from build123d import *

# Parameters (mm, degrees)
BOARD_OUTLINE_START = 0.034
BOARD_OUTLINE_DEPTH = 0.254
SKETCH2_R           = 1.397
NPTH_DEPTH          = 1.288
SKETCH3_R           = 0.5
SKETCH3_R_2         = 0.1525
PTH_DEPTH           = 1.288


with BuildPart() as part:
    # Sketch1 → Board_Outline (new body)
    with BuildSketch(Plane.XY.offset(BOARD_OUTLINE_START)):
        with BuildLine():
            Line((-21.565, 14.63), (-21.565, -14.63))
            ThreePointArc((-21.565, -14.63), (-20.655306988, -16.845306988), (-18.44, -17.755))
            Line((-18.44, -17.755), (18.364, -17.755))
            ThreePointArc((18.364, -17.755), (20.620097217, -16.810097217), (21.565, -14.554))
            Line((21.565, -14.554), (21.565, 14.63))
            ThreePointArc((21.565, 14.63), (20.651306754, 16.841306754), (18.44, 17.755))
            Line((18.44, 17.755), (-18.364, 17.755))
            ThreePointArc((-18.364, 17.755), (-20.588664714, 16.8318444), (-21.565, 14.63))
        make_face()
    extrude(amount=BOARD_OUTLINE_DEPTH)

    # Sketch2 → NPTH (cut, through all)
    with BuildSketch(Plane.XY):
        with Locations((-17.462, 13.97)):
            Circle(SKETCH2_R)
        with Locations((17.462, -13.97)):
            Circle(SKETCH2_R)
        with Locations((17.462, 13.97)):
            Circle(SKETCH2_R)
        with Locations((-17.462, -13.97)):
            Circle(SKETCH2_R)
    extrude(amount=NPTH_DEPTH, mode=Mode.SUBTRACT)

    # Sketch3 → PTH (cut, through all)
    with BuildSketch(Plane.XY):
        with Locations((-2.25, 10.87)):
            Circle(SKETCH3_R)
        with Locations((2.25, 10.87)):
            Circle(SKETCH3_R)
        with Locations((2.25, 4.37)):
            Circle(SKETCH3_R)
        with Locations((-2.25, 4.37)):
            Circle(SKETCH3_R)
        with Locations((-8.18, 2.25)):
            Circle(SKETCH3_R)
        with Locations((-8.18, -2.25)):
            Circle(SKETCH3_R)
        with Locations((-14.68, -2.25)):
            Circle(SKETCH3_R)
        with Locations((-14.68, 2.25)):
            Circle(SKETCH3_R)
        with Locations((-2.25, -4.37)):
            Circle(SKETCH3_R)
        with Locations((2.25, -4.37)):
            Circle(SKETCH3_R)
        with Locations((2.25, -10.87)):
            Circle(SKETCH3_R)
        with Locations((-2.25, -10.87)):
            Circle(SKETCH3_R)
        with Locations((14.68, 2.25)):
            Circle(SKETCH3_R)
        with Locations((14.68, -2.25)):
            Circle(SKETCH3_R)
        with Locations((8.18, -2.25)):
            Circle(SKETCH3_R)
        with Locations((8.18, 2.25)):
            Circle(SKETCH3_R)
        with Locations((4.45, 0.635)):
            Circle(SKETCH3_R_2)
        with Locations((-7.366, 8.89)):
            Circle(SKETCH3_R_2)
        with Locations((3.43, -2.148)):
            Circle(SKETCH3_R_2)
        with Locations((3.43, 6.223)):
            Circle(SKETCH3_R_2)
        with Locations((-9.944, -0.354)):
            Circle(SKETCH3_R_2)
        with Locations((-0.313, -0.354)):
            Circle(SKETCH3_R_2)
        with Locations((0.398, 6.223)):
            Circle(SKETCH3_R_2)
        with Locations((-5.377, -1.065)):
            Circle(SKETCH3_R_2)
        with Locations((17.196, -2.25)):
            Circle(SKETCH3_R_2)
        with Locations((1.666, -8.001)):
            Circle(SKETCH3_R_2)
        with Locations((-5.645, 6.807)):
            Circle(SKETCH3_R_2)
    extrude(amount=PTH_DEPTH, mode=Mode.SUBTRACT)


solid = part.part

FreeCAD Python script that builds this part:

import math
import FreeCAD as App
import Part
import Sketcher

V = App.Vector
Q = App.Units.Quantity

doc = App.newDocument("Part")
body = doc.addObject("PartDesign::Body", "Body")

sketch1 = body.newObject("Sketcher::SketchObject", "Sketch")
sketch1.AttachmentSupport = (doc.getObject("XY_Plane"), [""])
sketch1.MapMode = "FlatFace"
sketch1.AttachmentOffset = App.Placement(V(0, 0, 0.034), App.Rotation())
sketch1.addGeometry(Part.LineSegment(V(-21.6, 14.6, 0), V(-21.6, -14.6, 0)), False)
sketch1.addGeometry(Part.ArcOfCircle(Part.Circle(V(-18.5, -14.6, 0), V(0, 0, 1), 3.1), math.radians(180), math.radians(270)), False)
sketch1.addGeometry(Part.LineSegment(V(-18.4, -17.8, 0), V(18.4, -17.8, 0)), False)
sketch1.addGeometry(Part.ArcOfCircle(Part.Circle(V(18.3, -14.5, 0), V(0, 0, 1), 3.2), math.radians(-90), math.radians(0)), False)
sketch1.addGeometry(Part.LineSegment(V(21.6, -14.6, 0), V(21.6, 14.6, 0)), False)
sketch1.addGeometry(Part.ArcOfCircle(Part.Circle(V(18.4, 14.6, 0), V(0, 0, 1), 3.1), math.radians(0), math.radians(90)), False)
sketch1.addGeometry(Part.LineSegment(V(18.4, 17.8, 0), V(-18.4, 17.8, 0)), False)
sketch1.addGeometry(Part.ArcOfCircle(Part.Circle(V(-18.3, 14.5, 0), V(0, 0, 1), 3.2), math.radians(91), math.radians(178)), False)
sketch1.addConstraint(Sketcher.Constraint("Coincident", 0, 2, 1, 1))
sketch1.addConstraint(Sketcher.Constraint("Coincident", 1, 2, 2, 1))
sketch1.addConstraint(Sketcher.Constraint("Coincident", 2, 2, 3, 1))
sketch1.addConstraint(Sketcher.Constraint("Coincident", 3, 2, 4, 1))
sketch1.addConstraint(Sketcher.Constraint("Coincident", 4, 2, 5, 1))
sketch1.addConstraint(Sketcher.Constraint("Coincident", 5, 2, 6, 1))
sketch1.addConstraint(Sketcher.Constraint("Coincident", 6, 2, 7, 1))
sketch1.addConstraint(Sketcher.Constraint("Coincident", 7, 2, 0, 1))
sketch1.addConstraint(Sketcher.Constraint("Vertical", 0))
sketch1.addConstraint(Sketcher.Constraint("Horizontal", 2))
sketch1.addConstraint(Sketcher.Constraint("Vertical", 4))
sketch1.addConstraint(Sketcher.Constraint("Horizontal", 6))
sketch1.addConstraint(Sketcher.Constraint("Symmetric", 0, 2, 4, 2, -1, 1))
sketch1.addConstraint(Sketcher.Constraint("Symmetric", 1, 2, 5, 2, -1, 1))
sketch1.addConstraint(Sketcher.Constraint("Horizontal", 4, 2, 7, 2))
sketch1.addConstraint(Sketcher.Constraint("Equal", 2, 6))
sketch1.addConstraint(Sketcher.Constraint("Radius", 3, 3.22644))
sketch1.addConstraint(Sketcher.Constraint("Radius", 5, 3.11956))
sketch1.addConstraint(Sketcher.Constraint("DistanceX", 1, 2, 3, 2, Q("1.575 in")))
sketch1.addConstraint(Sketcher.Constraint("DistanceY", 2, 2, 4, 2, Q("1.275 in")))
sketch1.addConstraint(Sketcher.Constraint("DistanceX", 2, 1, 2, 2, 36.804))
sketch1.addConstraint(Sketcher.Constraint("DistanceY", 0, 2, 0, 1, 29.26))
sketch1.addConstraint(Sketcher.Constraint("DistanceY", 4, 1, 4, 2, 29.184))
sketch1.addConstraint(Sketcher.Constraint("Radius", 1, 3.106084))
sketch1.addConstraint(Sketcher.Constraint("Radius", 7, 3.246417))
sketch1.addConstraint(Sketcher.Constraint("DistanceX", 0, 2, -1, 1, 21.565))
pad1 = body.newObject("PartDesign::Pad", "Pad")
pad1.Profile = sketch1
pad1.Length = Q("0.01 in")

sketch2 = body.newObject("Sketcher::SketchObject", "Sketch001")
sketch2.AttachmentSupport = (doc.getObject("XY_Plane"), [""])
sketch2.MapMode = "FlatFace"
sketch2.addGeometry(Part.Circle(V(-17.5, 14, 0), V(0, 0, 1), 1.4), False)
sketch2.addGeometry(Part.Circle(V(17.5, -14, 0), V(0, 0, 1), 1.4), False)
sketch2.addGeometry(Part.Circle(V(17.5, 14, 0), V(0, 0, 1), 1.4), False)
sketch2.addGeometry(Part.Circle(V(-17.5, -14, 0), V(0, 0, 1), 1.4), False)
sketch2.addConstraint(Sketcher.Constraint("Equal", 0, 1))
sketch2.addConstraint(Sketcher.Constraint("Equal", 1, 2))
sketch2.addConstraint(Sketcher.Constraint("Equal", 2, 3))
sketch2.addConstraint(Sketcher.Constraint("Symmetric", 0, 3, 1, 3, -1, 1))
sketch2.addConstraint(Sketcher.Constraint("Symmetric", 2, 3, 3, 3, -1, 1))
sketch2.addConstraint(Sketcher.Constraint("Symmetric", 0, 3, 2, 3, -2))
sketch2.addConstraint(Sketcher.Constraint("Diameter", 0, Q("0.11 in")))
sketch2.addConstraint(Sketcher.Constraint("DistanceY", 1, 3, 0, 3, Q("1.1 in")))
sketch2.addConstraint(Sketcher.Constraint("DistanceX", 0, 3, -1, 1, 17.462))
pocket1 = body.newObject("PartDesign::Pocket", "Pocket")
pocket1.Profile = sketch2
pocket1.Type = "ThroughAll"
pocket1.Reversed = True

sketch3 = body.newObject("Sketcher::SketchObject", "Sketch002")
sketch3.AttachmentSupport = (doc.getObject("XY_Plane"), [""])
sketch3.MapMode = "FlatFace"
sketch3.addGeometry(Part.Circle(V(-2.25, 10.87, 0), V(0, 0, 1), 0.5), False)
sketch3.addGeometry(Part.Circle(V(2.25, 10.87, 0), V(0, 0, 1), 0.5), False)
sketch3.addGeometry(Part.Circle(V(2.25, 4.37, 0), V(0, 0, 1), 0.5), False)
sketch3.addGeometry(Part.Circle(V(-2.25, 4.37, 0), V(0, 0, 1), 0.5), False)
sketch3.addGeometry(Part.Circle(V(-8.18, 2.25, 0), V(0, 0, 1), 0.5), False)
sketch3.addGeometry(Part.Circle(V(-8.18, -2.25, 0), V(0, 0, 1), 0.5), False)
sketch3.addGeometry(Part.Circle(V(-14.68, -2.25, 0), V(0, 0, 1), 0.5), False)
sketch3.addGeometry(Part.Circle(V(-14.68, 2.25, 0), V(0, 0, 1), 0.5), False)
sketch3.addGeometry(Part.Circle(V(-2.25, -4.37, 0), V(0, 0, 1), 0.5), False)
sketch3.addGeometry(Part.Circle(V(2.25, -4.37, 0), V(0, 0, 1), 0.5), False)
sketch3.addGeometry(Part.Circle(V(2.25, -10.87, 0), V(0, 0, 1), 0.5), False)
sketch3.addGeometry(Part.Circle(V(-2.25, -10.87, 0), V(0, 0, 1), 0.5), False)
sketch3.addGeometry(Part.Circle(V(14.68, 2.25, 0), V(0, 0, 1), 0.5), False)
sketch3.addGeometry(Part.Circle(V(14.68, -2.25, 0), V(0, 0, 1), 0.5), False)
sketch3.addGeometry(Part.Circle(V(8.18, -2.25, 0), V(0, 0, 1), 0.5), False)
sketch3.addGeometry(Part.Circle(V(8.18, 2.25, 0), V(0, 0, 1), 0.5), False)
sketch3.addGeometry(Part.Circle(V(4.45, 0.64, 0), V(0, 0, 1), 0.15), False)
sketch3.addGeometry(Part.Circle(V(-7.37, 8.89, 0), V(0, 0, 1), 0.15), False)
sketch3.addGeometry(Part.Circle(V(3.43, -2.15, 0), V(0, 0, 1), 0.15), False)
sketch3.addGeometry(Part.Circle(V(3.43, 6.22, 0), V(0, 0, 1), 0.15), False)
sketch3.addGeometry(Part.Circle(V(-9.94, -0.35, 0), V(0, 0, 1), 0.15), False)
sketch3.addGeometry(Part.Circle(V(-0.31, -0.35, 0), V(0, 0, 1), 0.15), False)
sketch3.addGeometry(Part.Circle(V(0.4, 6.22, 0), V(0, 0, 1), 0.15), False)
sketch3.addGeometry(Part.Circle(V(-5.38, -1.06, 0), V(0, 0, 1), 0.15), False)
sketch3.addGeometry(Part.Circle(V(17.2, -2.25, 0), V(0, 0, 1), 0.15), False)
sketch3.addGeometry(Part.Circle(V(1.67, -8, 0), V(0, 0, 1), 0.15), False)
sketch3.addGeometry(Part.Circle(V(-5.64, 6.81, 0), V(0, 0, 1), 0.15), False)
sketch3.addConstraint(Sketcher.Constraint("Equal", 0, 1))
sketch3.addConstraint(Sketcher.Constraint("Equal", 1, 2))
sketch3.addConstraint(Sketcher.Constraint("Equal", 2, 3))
sketch3.addConstraint(Sketcher.Constraint("Equal", 3, 4))
sketch3.addConstraint(Sketcher.Constraint("Equal", 4, 5))
sketch3.addConstraint(Sketcher.Constraint("Equal", 5, 6))
sketch3.addConstraint(Sketcher.Constraint("Equal", 6, 7))
sketch3.addConstraint(Sketcher.Constraint("Equal", 7, 8))
sketch3.addConstraint(Sketcher.Constraint("Equal", 8, 9))
sketch3.addConstraint(Sketcher.Constraint("Equal", 9, 10))
sketch3.addConstraint(Sketcher.Constraint("Equal", 10, 11))
sketch3.addConstraint(Sketcher.Constraint("Equal", 11, 12))
sketch3.addConstraint(Sketcher.Constraint("Equal", 12, 13))
sketch3.addConstraint(Sketcher.Constraint("Equal", 13, 14))
sketch3.addConstraint(Sketcher.Constraint("Equal", 14, 15))
sketch3.addConstraint(Sketcher.Constraint("Equal", 16, 17))
sketch3.addConstraint(Sketcher.Constraint("Equal", 17, 18))
sketch3.addConstraint(Sketcher.Constraint("Equal", 18, 19))
sketch3.addConstraint(Sketcher.Constraint("Equal", 19, 20))
sketch3.addConstraint(Sketcher.Constraint("Equal", 20, 21))
sketch3.addConstraint(Sketcher.Constraint("Equal", 21, 22))
sketch3.addConstraint(Sketcher.Constraint("Equal", 22, 23))
sketch3.addConstraint(Sketcher.Constraint("Equal", 23, 24))
sketch3.addConstraint(Sketcher.Constraint("Equal", 24, 25))
sketch3.addConstraint(Sketcher.Constraint("Equal", 25, 26))
sketch3.addConstraint(Sketcher.Constraint("Symmetric", 2, 3, 8, 3, -1, 1))
sketch3.addConstraint(Sketcher.Constraint("Symmetric", 3, 3, 9, 3, -1, 1))
sketch3.addConstraint(Sketcher.Constraint("Symmetric", 0, 3, 10, 3, -1, 1))
sketch3.addConstraint(Sketcher.Constraint("Symmetric", 1, 3, 11, 3, -1, 1))
sketch3.addConstraint(Sketcher.Constraint("Symmetric", 6, 3, 12, 3, -1, 1))
sketch3.addConstraint(Sketcher.Constraint("Symmetric", 7, 3, 13, 3, -1, 1))
sketch3.addConstraint(Sketcher.Constraint("Symmetric", 4, 3, 14, 3, -1, 1))
sketch3.addConstraint(Sketcher.Constraint("Symmetric", 5, 3, 15, 3, -1, 1))
sketch3.addConstraint(Sketcher.Constraint("Symmetric", 0, 3, 1, 3, -2))
sketch3.addConstraint(Sketcher.Constraint("Symmetric", 2, 3, 3, 3, -2))
sketch3.addConstraint(Sketcher.Constraint("Symmetric", 7, 3, 12, 3, -2))
sketch3.addConstraint(Sketcher.Constraint("Symmetric", 5, 3, 14, 3, -2))
sketch3.addConstraint(Sketcher.Constraint("Horizontal", 5, 3, 6, 3))
sketch3.addConstraint(Sketcher.Constraint("Horizontal", 20, 3, 21, 3))
sketch3.addConstraint(Sketcher.Constraint("Horizontal", 19, 3, 22, 3))
sketch3.addConstraint(Sketcher.Constraint("Horizontal", 14, 3, 24, 3))
sketch3.addConstraint(Sketcher.Constraint("Vertical", 1, 3, 2, 3))
sketch3.addConstraint(Sketcher.Constraint("Vertical", 18, 3, 19, 3))
sketch3.addConstraint(Sketcher.Constraint("DistanceY", 10, 3, 2, 3, Q("0.6 in")))
sketch3.addConstraint(Sketcher.Constraint("Diameter", 0, 1.0))
sketch3.addConstraint(Sketcher.Constraint("Diameter", 16, 0.305))
sketch3.addConstraint(Sketcher.Constraint("DistanceX", 17, 3, -1, 1, Q("0.29 in")))
sketch3.addConstraint(Sketcher.Constraint("DistanceY", -1, 1, 17, 3, Q("0.35 in")))
sketch3.addConstraint(Sketcher.Constraint("DistanceY", 16, 3, 19, 3, Q("0.22 in")))
sketch3.addConstraint(Sketcher.Constraint("DistanceY", -1, 1, 16, 3, Q("0.025 in")))
sketch3.addConstraint(Sketcher.Constraint("DistanceY", 25, 3, -1, 1, Q("0.315 in")))
sketch3.addConstraint(Sketcher.Constraint("DistanceX", 0, 3, -1, 1, 2.25))
sketch3.addConstraint(Sketcher.Constraint("DistanceY", -1, 1, 0, 3, 10.87))
sketch3.addConstraint(Sketcher.Constraint("DistanceX", 4, 3, -1, 1, 8.18))
sketch3.addConstraint(Sketcher.Constraint("DistanceY", -1, 1, 4, 3, 2.25))
sketch3.addConstraint(Sketcher.Constraint("DistanceX", 6, 3, -1, 1, 14.68))
sketch3.addConstraint(Sketcher.Constraint("DistanceX", -1, 1, 16, 3, 4.45))
sketch3.addConstraint(Sketcher.Constraint("DistanceX", -1, 1, 18, 3, 3.43))
sketch3.addConstraint(Sketcher.Constraint("DistanceY", 18, 3, -1, 1, 2.148))
sketch3.addConstraint(Sketcher.Constraint("DistanceX", 20, 3, -1, 1, 9.944))
sketch3.addConstraint(Sketcher.Constraint("DistanceY", 20, 3, -1, 1, 0.354))
sketch3.addConstraint(Sketcher.Constraint("DistanceX", 21, 3, -1, 1, 0.313))
sketch3.addConstraint(Sketcher.Constraint("DistanceX", -1, 1, 22, 3, 0.398))
sketch3.addConstraint(Sketcher.Constraint("DistanceX", 23, 3, -1, 1, 5.377))
sketch3.addConstraint(Sketcher.Constraint("DistanceY", 23, 3, -1, 1, 1.065))
sketch3.addConstraint(Sketcher.Constraint("DistanceX", -1, 1, 24, 3, 17.196))
sketch3.addConstraint(Sketcher.Constraint("DistanceX", -1, 1, 25, 3, 1.666))
sketch3.addConstraint(Sketcher.Constraint("DistanceX", 26, 3, -1, 1, 5.645))
sketch3.addConstraint(Sketcher.Constraint("DistanceY", -1, 1, 26, 3, 6.807))
pocket2 = body.newObject("PartDesign::Pocket", "Pocket001")
pocket2.Profile = sketch3
pocket2.Type = "ThroughAll"
pocket2.Reversed = True

doc.recompute()
